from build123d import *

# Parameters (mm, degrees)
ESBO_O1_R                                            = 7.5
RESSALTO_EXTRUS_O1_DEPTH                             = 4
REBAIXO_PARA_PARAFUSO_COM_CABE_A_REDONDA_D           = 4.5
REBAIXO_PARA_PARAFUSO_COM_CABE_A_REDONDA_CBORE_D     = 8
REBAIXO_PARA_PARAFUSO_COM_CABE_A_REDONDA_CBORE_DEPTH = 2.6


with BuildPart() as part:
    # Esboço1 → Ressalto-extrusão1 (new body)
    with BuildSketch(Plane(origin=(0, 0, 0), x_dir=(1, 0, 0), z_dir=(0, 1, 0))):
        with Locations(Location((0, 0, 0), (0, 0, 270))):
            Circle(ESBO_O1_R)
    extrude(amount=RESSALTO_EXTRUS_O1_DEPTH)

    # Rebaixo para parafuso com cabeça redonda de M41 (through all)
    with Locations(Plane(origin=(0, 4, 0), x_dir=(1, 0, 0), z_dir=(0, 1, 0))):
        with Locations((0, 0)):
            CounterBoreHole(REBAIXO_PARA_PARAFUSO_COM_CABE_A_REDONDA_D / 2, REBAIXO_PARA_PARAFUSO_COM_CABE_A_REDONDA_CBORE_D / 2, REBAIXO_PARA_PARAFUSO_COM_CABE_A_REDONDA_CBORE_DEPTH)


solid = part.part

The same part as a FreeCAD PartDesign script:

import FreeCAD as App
import Part
import Sketcher

V = App.Vector
Q = App.Units.Quantity

doc = App.newDocument("Part")
body = doc.addObject("PartDesign::Body", "Body")

# Sketch on XZ plane
sketch1 = body.newObject("Sketcher::SketchObject", "Sketch")
sketch1.AttachmentSupport = (doc.getObject("XZ_Plane"), [""])
sketch1.MapMode = "FlatFace"
sketch1.addGeometry(Part.Circle(V(0, 0, 0), V(0, 0, 1), 8), False)
sketch1.addConstraint(Sketcher.Constraint("Coincident", 0, 3, -1, 1))
sketch1.addConstraint(Sketcher.Constraint("Diameter", 0, Q("15 mm")))
pad1 = body.newObject("PartDesign::Pad", "Pad")
pad1.Profile = sketch1
pad1.Length = 4
pad1.Reversed = True

# Sketch on XZ plane
sketch2 = body.newObject("Sketcher::SketchObject", "Sketch001")
sketch2.AttachmentSupport = (doc.getObject("XZ_Plane"), [""])
sketch2.MapMode = "FlatFace"
sketch2.AttachmentOffset = App.Placement(V(0, 0, -4), App.Rotation())
sketch2.addGeometry(Part.Circle(V(0, 0, 0), V(0, 0, 1), 2.2), False)
sketch2.addConstraint(Sketcher.Constraint("Coincident", 0, 3, -1, 1))
sketch2.addConstraint(Sketcher.Constraint("Diameter", 0, Q("4.5 mm")))
doc.recompute()
hole = body.newObject("PartDesign::Hole", "Hole")
hole.Profile = sketch2
hole.ThreadType = "None"
hole.Diameter = 4.5
hole.DepthType = "ThroughAll"
hole.HoleCutType = "Counterbore"
hole.HoleCutDiameter = 8
hole.HoleCutDepth = 2.6
hole.Reversed = True

doc.recompute()
